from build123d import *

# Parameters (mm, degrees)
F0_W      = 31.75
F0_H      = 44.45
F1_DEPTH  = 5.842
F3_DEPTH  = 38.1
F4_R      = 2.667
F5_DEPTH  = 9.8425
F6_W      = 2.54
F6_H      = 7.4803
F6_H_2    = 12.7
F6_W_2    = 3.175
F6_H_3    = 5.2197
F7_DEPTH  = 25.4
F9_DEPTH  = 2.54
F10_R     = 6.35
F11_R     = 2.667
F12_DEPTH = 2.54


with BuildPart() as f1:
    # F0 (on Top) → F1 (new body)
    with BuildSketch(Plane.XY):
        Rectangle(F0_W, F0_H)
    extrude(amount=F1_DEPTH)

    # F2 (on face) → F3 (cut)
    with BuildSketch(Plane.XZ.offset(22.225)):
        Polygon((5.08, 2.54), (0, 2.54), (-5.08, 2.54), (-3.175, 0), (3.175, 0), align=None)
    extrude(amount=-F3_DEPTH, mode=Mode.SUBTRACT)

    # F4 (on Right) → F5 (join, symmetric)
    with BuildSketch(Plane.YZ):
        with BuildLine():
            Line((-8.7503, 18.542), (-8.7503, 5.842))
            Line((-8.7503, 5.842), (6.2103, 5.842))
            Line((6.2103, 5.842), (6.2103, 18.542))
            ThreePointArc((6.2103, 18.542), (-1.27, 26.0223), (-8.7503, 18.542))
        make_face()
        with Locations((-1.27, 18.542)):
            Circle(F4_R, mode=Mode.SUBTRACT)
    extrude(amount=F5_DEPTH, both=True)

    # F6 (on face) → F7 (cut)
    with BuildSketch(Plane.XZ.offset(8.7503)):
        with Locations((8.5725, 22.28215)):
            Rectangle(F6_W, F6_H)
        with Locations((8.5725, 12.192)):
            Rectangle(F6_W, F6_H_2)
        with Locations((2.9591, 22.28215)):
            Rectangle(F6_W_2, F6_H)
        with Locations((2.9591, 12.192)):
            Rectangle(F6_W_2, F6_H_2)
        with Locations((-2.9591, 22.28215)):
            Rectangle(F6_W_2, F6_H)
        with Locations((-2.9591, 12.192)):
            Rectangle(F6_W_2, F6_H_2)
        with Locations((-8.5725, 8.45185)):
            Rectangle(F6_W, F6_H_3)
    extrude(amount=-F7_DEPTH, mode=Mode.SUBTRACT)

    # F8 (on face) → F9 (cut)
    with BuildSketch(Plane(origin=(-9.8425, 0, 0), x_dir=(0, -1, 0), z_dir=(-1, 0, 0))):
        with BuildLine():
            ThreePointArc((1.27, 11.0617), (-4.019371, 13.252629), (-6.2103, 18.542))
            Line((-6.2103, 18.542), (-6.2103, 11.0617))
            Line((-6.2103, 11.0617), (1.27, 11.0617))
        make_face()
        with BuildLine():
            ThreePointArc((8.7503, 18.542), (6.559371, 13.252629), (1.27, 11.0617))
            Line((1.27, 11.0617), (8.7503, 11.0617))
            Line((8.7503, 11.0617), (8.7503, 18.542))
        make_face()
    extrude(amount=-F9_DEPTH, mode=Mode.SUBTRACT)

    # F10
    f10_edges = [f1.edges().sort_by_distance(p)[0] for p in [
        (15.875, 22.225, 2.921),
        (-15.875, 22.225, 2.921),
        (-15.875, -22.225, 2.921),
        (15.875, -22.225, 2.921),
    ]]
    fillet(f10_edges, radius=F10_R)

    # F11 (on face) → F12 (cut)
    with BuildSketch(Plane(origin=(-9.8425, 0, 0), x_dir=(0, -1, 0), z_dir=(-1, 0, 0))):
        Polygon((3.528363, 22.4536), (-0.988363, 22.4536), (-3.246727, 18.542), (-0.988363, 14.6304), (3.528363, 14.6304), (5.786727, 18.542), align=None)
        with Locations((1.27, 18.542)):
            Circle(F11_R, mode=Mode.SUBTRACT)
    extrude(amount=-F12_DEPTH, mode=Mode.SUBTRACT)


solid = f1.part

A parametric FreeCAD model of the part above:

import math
import FreeCAD as App
import Part
import Sketcher
from FreeCAD import Vector
Q = App.Units.Quantity


def edges_at(feature, points):
    """Names of the edges that pass closest to the given points."""
    edges = feature.Shape.Edges
    near = lambda p: min(range(len(edges)), key=lambda i: edges[i].distToShape(Part.Vertex(*p))[0])
    return sorted({f"Edge{near(p) + 1}" for p in points})

doc = App.newDocument("Part")
body = doc.addObject("PartDesign::Body", "Body")

# Sketch on XY plane
sketch1 = body.newObject("Sketcher::SketchObject", "Sketch")
sketch1.AttachmentSupport = (doc.getObject("XY_Plane"), [""])
sketch1.MapMode = "FlatFace"
sketch1.addGeometry([
    Part.LineSegment(Vector(-16, 22, 0), Vector(-16, -22, 0)),
    Part.LineSegment(Vector(-16, -22, 0), Vector(16, -22, 0)),
    Part.LineSegment(Vector(16, -22, 0), Vector(16, 22, 0)),
    Part.LineSegment(Vector(16, 22, 0), Vector(-16, 22, 0)),
], False)
sketch1.addConstraint([
    Sketcher.Constraint("Coincident", 0, 2, 1, 1),
    Sketcher.Constraint("Coincident", 1, 2, 2, 1),
    Sketcher.Constraint("Coincident", 2, 2, 3, 1),
    Sketcher.Constraint("Coincident", 3, 2, 0, 1),
    Sketcher.Constraint("Vertical", 0),
    Sketcher.Constraint("Horizontal", 1),
    Sketcher.Constraint("Vertical", 2),
    Sketcher.Constraint("Horizontal", 3),
    Sketcher.Constraint("Symmetric", 0, 2, 2, 2, -1, 1),
    Sketcher.Constraint("DistanceX", 1, 1, 1, 2, Q("1.25 in")),
    Sketcher.Constraint("DistanceY", 0, 2, 0, 1, Q("1.75 in")),
])
pad1 = body.newObject("PartDesign::Pad", "Pad")
pad1.Profile = sketch1
pad1.Length = Q("0.23 in")

# Sketch on XZ plane
sketch2 = body.newObject("Sketcher::SketchObject", "Sketch001")
sketch2.AttachmentSupport = (doc.getObject("XZ_Plane"), [""])
sketch2.MapMode = "FlatFace"
sketch2.AttachmentOffset = App.Placement(Vector(0, 0, 0.875 * 25.4), App.Rotation())
sketch2.addGeometry([
    Part.LineSegment(Vector(5.1, 2.5, 0), Vector(-5.1, 2.5, 0)),
    Part.LineSegment(Vector(-5.1, 2.5, 0), Vector(-3.2, 0, 0)),
    Part.LineSegment(Vector(-3.2, 0, 0), Vector(3.2, 0, 0)),
    Part.LineSegment(Vector(3.2, 0, 0), Vector(5.1, 2.5, 0)),
], False)
sketch2.addConstraint([
    Sketcher.Constraint("Coincident", 0, 2, 1, 1),
    Sketcher.Constraint("Coincident", 1, 2, 2, 1),
    Sketcher.Constraint("Coincident", 2, 2, 3, 1),
    Sketcher.Constraint("Coincident", 3, 2, 0, 1),
    Sketcher.Constraint("Horizontal", 0),
    Sketcher.Constraint("Horizontal", 2),
    Sketcher.Constraint("Symmetric", 1, 2, 2, 2, -1, 1),
    Sketcher.Constraint("Equal", 1, 3),
    Sketcher.Constraint("DistanceX", 0, 2, 0, 1, Q("0.4 in")),
    Sketcher.Constraint("DistanceX", 2, 1, 2, 2, Q("0.25 in")),
    Sketcher.Constraint("DistanceY", -1, 1, 0, 2, Q("0.1 in")),
])
pocket1 = body.newObject("PartDesign::Pocket", "Pocket")
pocket1.Profile = sketch2
pocket1.Length = Q("1.5 in")

# Sketch on YZ plane
sketch3 = body.newObject("Sketcher::SketchObject", "Sketch002")
sketch3.AttachmentSupport = (doc.getObject("YZ_Plane"), [""])
sketch3.MapMode = "FlatFace"
sketch3.addGeometry([
    Part.LineSegment(Vector(-8.8, 18.5, 0), Vector(-8.8, 5.8, 0)),  # 0
    Part.LineSegment(Vector(-8.8, 5.8, 0), Vector(6.2, 5.8, 0)),  # 1
    Part.LineSegment(Vector(6.2, 5.8, 0), Vector(6.2, 18.5, 0)),  # 2
    Part.ArcOfCircle(Part.Circle(Vector(-1.3, 18.5, 0), Vector(0, 0, 1), 7.5), math.radians(0), math.radians(180)),  # 3
    Part.Circle(Vector(-1.3, 18.5, 0), Vector(0, 0, 1), 2.7),  # 4
], False)
sketch3.addConstraint([
    Sketcher.Constraint("Coincident", 0, 2, 1, 1),
    Sketcher.Constraint("Coincident", 1, 2, 2, 1),
    Sketcher.Constraint("Tangent", 2, 2, 3, 1),
    Sketcher.Constraint("Tangent", 3, 2, 0, 1),
    Sketcher.Constraint("Vertical", 0),
    Sketcher.Constraint("Horizontal", 1),
    Sketcher.Constraint("Vertical", 2),
    Sketcher.Constraint("Coincident", 4, 3, 3, 3),
    Sketcher.Constraint("Diameter", 4, Q("0.21 in")),
    Sketcher.Constraint("DistanceY", 0, 2, 0, 1, Q("0.5 in")),
    Sketcher.Constraint("Radius", 3, Q("0.2945 in")),
    Sketcher.Constraint("DistanceX", 3, 3, -1, 1, Q("0.05 in")),
    Sketcher.Constraint("DistanceY", -1, 1, 3, 3, Q("0.73 in")),
])
pad2 = body.newObject("PartDesign::Pad", "Pad001")
pad2.Profile = sketch3
pad2.Length = Q("0.775 in")
pad2.Midplane = True

# Sketch on XZ plane
sketch4 = body.newObject("Sketcher::SketchObject", "Sketch003")
sketch4.AttachmentSupport = (doc.getObject("XZ_Plane"), [""])
sketch4.MapMode = "FlatFace"
sketch4.AttachmentOffset = App.Placement(Vector(0, 0, 0.3445 * 25.4), App.Rotation())
sketch4.addGeometry([
    Part.LineSegment(Vector(7.3, 26, 0), Vector(7.3, 5.8, 0)),  # 0
    Part.LineSegment(Vector(7.3, 5.8, 0), Vector(9.8, 5.8, 0)),  # 1
    Part.LineSegment(Vector(9.8, 5.8, 0), Vector(9.8, 26, 0)),  # 2
    Part.LineSegment(Vector(9.8, 26, 0), Vector(7.3, 26, 0)),  # 3
    Part.LineSegment(Vector(1.4, 26, 0), Vector(1.4, 5.8, 0)),  # 4
    Part.LineSegment(Vector(1.4, 5.8, 0), Vector(4.5, 5.8, 0)),  # 5
    Part.LineSegment(Vector(4.5, 5.8, 0), Vector(4.5, 26, 0)),  # 6
    Part.LineSegment(Vector(4.5, 26, 0), Vector(1.4, 26, 0)),  # 7
    Part.LineSegment(Vector(-4.5, 26, 0), Vector(-4.5, 5.8, 0)),  # 8
    Part.LineSegment(Vector(-4.5, 5.8, 0), Vector(-1.4, 5.8, 0)),  # 9
    Part.LineSegment(Vector(-1.4, 5.8, 0), Vector(-1.4, 26, 0)),  # 10
    Part.LineSegment(Vector(-1.4, 26, 0), Vector(-4.5, 26, 0)),  # 11
    Part.LineSegment(Vector(-9.8, 11.1, 0), Vector(-9.8, 5.8, 0)),  # 12
    Part.LineSegment(Vector(-9.8, 5.8, 0), Vector(-7.3, 5.8, 0)),  # 13
    Part.LineSegment(Vector(-7.3, 5.8, 0), Vector(-7.3, 11.1, 0)),  # 14
    Part.LineSegment(Vector(-7.3, 11.1, 0), Vector(-9.8, 11.1, 0)),  # 15
], False)
sketch4.addConstraint([
    Sketcher.Constraint("Coincident", 0, 2, 1, 1),
    Sketcher.Constraint("Coincident", 1, 2, 2, 1),
    Sketcher.Constraint("Coincident", 2, 2, 3, 1),
    Sketcher.Constraint("Coincident", 3, 2, 0, 1),
    Sketcher.Constraint("Coincident", 4, 2, 5, 1),
    Sketcher.Constraint("Coincident", 5, 2, 6, 1),
    Sketcher.Constraint("Coincident", 6, 2, 7, 1),
    Sketcher.Constraint("Coincident", 7, 2, 4, 1),
    Sketcher.Constraint("Coincident", 8, 2, 9, 1),
    Sketcher.Constraint("Coincident", 9, 2, 10, 1),
    Sketcher.Constraint("Coincident", 10, 2, 11, 1),
    Sketcher.Constraint("Coincident", 11, 2, 8, 1),
    Sketcher.Constraint("Coincident", 12, 2, 13, 1),
    Sketcher.Constraint("Coincident", 13, 2, 14, 1),
    Sketcher.Constraint("Coincident", 14, 2, 15, 1),
    Sketcher.Constraint("Coincident", 15, 2, 12, 1),
    Sketcher.Constraint("Vertical", 0),
    Sketcher.Constraint("Horizontal", 1),
    Sketcher.Constraint("Vertical", 2),
    Sketcher.Constraint("Horizontal", 3),
    Sketcher.Constraint("Vertical", 4),
    Sketcher.Constraint("Horizontal", 5),
    Sketcher.Constraint("Vertical", 6),
    Sketcher.Constraint("Horizontal", 7),
    Sketcher.Constraint("Vertical", 8),
    Sketcher.Constraint("Horizontal", 9),
    Sketcher.Constraint("Vertical", 10),
    Sketcher.Constraint("Horizontal", 11),
    Sketcher.Constraint("Vertical", 12),
    Sketcher.Constraint("Horizontal", 13),
    Sketcher.Constraint("Vertical", 14),
    Sketcher.Constraint("Horizontal", 15),
    Sketcher.Constraint("Symmetric", 5, 2, 8, 2, -2),
    Sketcher.Constraint("Symmetric", 7, 2, 10, 2, -2),
    Sketcher.Constraint("Symmetric", 1, 2, 12, 2, -2),
    Sketcher.Constraint("Horizontal", 1, 2, 4, 2),
    Sketcher.Constraint("Horizontal", 3, 2, 6, 2),
    Sketcher.Constraint("Equal", 3, 13),
    Sketcher.Constraint("DistanceX", 1, 1, 1, 2, Q("0.1 in")),
    Sketcher.Constraint("DistanceX", 5, 1, 5, 2, Q("0.125 in")),
    Sketcher.Constraint("DistanceY", -1, 1, 0, 2, Q("0.23 in")),
    Sketcher.Constraint("DistanceY", 0, 2, 0, 1, Q("0.7945 in")),
    Sketcher.Constraint("DistanceY", 12, 2, 12, 1, Q("0.2055 in")),
    Sketcher.Constraint("DistanceX", -1, 1, 4, 2, Q("0.054 in")),
    Sketcher.Constraint("DistanceX", 12, 2, 0, 2, Q("0.675 in")),
])
pocket2 = body.newObject("PartDesign::Pocket", "Pocket001")
pocket2.Profile = sketch4
pocket2.Length = Q("1 in")

# Sketch on YZ plane
sketch5 = body.newObject("Sketcher::SketchObject", "Sketch004")
sketch5.AttachmentSupport = (doc.getObject("YZ_Plane"), [""])
sketch5.MapMode = "FlatFace"
sketch5.AttachmentOffset = App.Placement(Vector(0, 0, -0.3875 * 25.4), App.Rotation())
sketch5.addGeometry([
    Part.ArcOfCircle(Part.Circle(Vector(-1, 19, 0), Vector(0, 0, 1), 7), math.radians(-90), math.radians(0)),  # 0
    Part.LineSegment(Vector(6, 19, 0), Vector(6, 11, 0)),  # 1
    Part.LineSegment(Vector(6, 11, 0), Vector(-1, 11, 0)),  # 2
    Part.ArcOfCircle(Part.Circle(Vector(-1, 19, 0), Vector(0, 0, 1), 7), math.radians(180), math.radians(270)),  # 3
    Part.LineSegment(Vector(-1, 11, 0), Vector(-9, 11, 0)),  # 4
    Part.LineSegment(Vector(-9, 11, 0), Vector(-9, 19, 0)),  # 5
], False)
sketch5.addConstraint([
    Sketcher.Constraint("Tangent", 0, 2, 1, 1),
    Sketcher.Constraint("Coincident", 1, 2, 2, 1),
    Sketcher.Constraint("Tangent", 2, 2, 0, 1),
    Sketcher.Constraint("Tangent", 3, 2, 4, 1),
    Sketcher.Constraint("Coincident", 4, 2, 5, 1),
    Sketcher.Constraint("Tangent", 5, 2, 3, 1),
    Sketcher.Constraint("Vertical", 1),
    Sketcher.Constraint("Horizontal", 2),
    Sketcher.Constraint("Horizontal", 4),
    Sketcher.Constraint("Vertical", 5),
    Sketcher.Constraint("Coincident", 3, 3, 0, 3),
    Sketcher.Constraint("Equal", 0, 3),
    Sketcher.Constraint("Radius", 0, Q("0.2945 in")),
    Sketcher.Constraint("DistanceX", 0, 3, -1, 1, Q("0.05 in")),
    Sketcher.Constraint("DistanceY", -1, 1, 0, 3, Q("0.73 in")),
])
pocket3 = body.newObject("PartDesign::Pocket", "Pocket002")
pocket3.Profile = sketch5
pocket3.Length = Q("0.1 in")
pocket3.Reversed = True
doc.recompute()

fillet = body.newObject("PartDesign::Fillet", "Fillet")
fillet.Base = (pocket3, edges_at(pocket3, [
    (15.875, 22.225, 2.921),
    (-15.875, 22.225, 2.921),
    (-15.875, -22.225, 2.921),
    (15.875, -22.225, 2.921),
]))
fillet.Radius = Q("0.25 in")

# Sketch on YZ plane
sketch6 = body.newObject("Sketcher::SketchObject", "Sketch005")
sketch6.AttachmentSupport = (doc.getObject("YZ_Plane"), [""])
sketch6.MapMode = "FlatFace"
sketch6.AttachmentOffset = App.Placement(Vector(0, 0, -0.3875 * 25.4), App.Rotation())
sketch6.addGeometry([
    Part.LineSegment(Vector(-3.5, 22.5, 0), Vector(1, 22.5, 0)),  # 0
    Part.LineSegment(Vector(1, 22.5, 0), Vector(3.2, 18.5, 0)),  # 1
    Part.LineSegment(Vector(3.2, 18.5, 0), Vector(1, 14.6, 0)),  # 2
    Part.LineSegment(Vector(1, 14.6, 0), Vector(-3.5, 14.6, 0)),  # 3
    Part.LineSegment(Vector(-3.5, 14.6, 0), Vector(-5.8, 18.5, 0)),  # 4
    Part.LineSegment(Vector(-5.8, 18.5, 0), Vector(-3.5, 22.5, 0)),  # 5
    Part.Circle(Vector(-1.3, 18.5, 0), Vector(0, 0, 1), 2.7),  # 6
], False)
sketch6.addConstraint([
    Sketcher.Constraint("Coincident", 0, 2, 1, 1),
    Sketcher.Constraint("Coincident", 1, 2, 2, 1),
    Sketcher.Constraint("Coincident", 2, 2, 3, 1),
    Sketcher.Constraint("Coincident", 3, 2, 4, 1),
    Sketcher.Constraint("Coincident", 4, 2, 5, 1),
    Sketcher.Constraint("Coincident", 5, 2, 0, 1),
    Sketcher.Constraint("Horizontal", 0),
    Sketcher.Constraint("Horizontal", 3),
    Sketcher.Constraint("Parallel", 1, 4),
    Sketcher.Constraint("Parallel", 2, 5),
    Sketcher.Constraint("Horizontal", 6, 3, 1, 2),
    Sketcher.Constraint("Horizontal", 1, 2, 4, 2),
    Sketcher.Constraint("Vertical", 0, 2, 2, 2),
    Sketcher.Constraint("Vertical", 3, 2, 5, 2),
    Sketcher.Constraint("Diameter", 6, Q("0.21 in")),
    Sketcher.Constraint("Angle", 1, Q("-59.999992 deg")),
    Sketcher.Constraint("DistanceX", 6, 3, -1, 1, Q("0.05 in")),
    Sketcher.Constraint("DistanceY", -1, 1, 6, 3, Q("0.73 in")),
    Sketcher.Constraint("DistanceY", -1, 1, 0, 2, Q("0.884 in")),
    Sketcher.Constraint("DistanceX", 0, 1, 0, 2, Q("4.516726 mm")),
    Sketcher.Constraint("DistanceX", -1, 1, 0, 2, Q("0.988363 mm")),
])
pocket4 = body.newObject("PartDesign::Pocket", "Pocket003")
pocket4.Profile = sketch6
pocket4.Length = Q("0.1 in")
pocket4.Reversed = True

doc.recompute()
